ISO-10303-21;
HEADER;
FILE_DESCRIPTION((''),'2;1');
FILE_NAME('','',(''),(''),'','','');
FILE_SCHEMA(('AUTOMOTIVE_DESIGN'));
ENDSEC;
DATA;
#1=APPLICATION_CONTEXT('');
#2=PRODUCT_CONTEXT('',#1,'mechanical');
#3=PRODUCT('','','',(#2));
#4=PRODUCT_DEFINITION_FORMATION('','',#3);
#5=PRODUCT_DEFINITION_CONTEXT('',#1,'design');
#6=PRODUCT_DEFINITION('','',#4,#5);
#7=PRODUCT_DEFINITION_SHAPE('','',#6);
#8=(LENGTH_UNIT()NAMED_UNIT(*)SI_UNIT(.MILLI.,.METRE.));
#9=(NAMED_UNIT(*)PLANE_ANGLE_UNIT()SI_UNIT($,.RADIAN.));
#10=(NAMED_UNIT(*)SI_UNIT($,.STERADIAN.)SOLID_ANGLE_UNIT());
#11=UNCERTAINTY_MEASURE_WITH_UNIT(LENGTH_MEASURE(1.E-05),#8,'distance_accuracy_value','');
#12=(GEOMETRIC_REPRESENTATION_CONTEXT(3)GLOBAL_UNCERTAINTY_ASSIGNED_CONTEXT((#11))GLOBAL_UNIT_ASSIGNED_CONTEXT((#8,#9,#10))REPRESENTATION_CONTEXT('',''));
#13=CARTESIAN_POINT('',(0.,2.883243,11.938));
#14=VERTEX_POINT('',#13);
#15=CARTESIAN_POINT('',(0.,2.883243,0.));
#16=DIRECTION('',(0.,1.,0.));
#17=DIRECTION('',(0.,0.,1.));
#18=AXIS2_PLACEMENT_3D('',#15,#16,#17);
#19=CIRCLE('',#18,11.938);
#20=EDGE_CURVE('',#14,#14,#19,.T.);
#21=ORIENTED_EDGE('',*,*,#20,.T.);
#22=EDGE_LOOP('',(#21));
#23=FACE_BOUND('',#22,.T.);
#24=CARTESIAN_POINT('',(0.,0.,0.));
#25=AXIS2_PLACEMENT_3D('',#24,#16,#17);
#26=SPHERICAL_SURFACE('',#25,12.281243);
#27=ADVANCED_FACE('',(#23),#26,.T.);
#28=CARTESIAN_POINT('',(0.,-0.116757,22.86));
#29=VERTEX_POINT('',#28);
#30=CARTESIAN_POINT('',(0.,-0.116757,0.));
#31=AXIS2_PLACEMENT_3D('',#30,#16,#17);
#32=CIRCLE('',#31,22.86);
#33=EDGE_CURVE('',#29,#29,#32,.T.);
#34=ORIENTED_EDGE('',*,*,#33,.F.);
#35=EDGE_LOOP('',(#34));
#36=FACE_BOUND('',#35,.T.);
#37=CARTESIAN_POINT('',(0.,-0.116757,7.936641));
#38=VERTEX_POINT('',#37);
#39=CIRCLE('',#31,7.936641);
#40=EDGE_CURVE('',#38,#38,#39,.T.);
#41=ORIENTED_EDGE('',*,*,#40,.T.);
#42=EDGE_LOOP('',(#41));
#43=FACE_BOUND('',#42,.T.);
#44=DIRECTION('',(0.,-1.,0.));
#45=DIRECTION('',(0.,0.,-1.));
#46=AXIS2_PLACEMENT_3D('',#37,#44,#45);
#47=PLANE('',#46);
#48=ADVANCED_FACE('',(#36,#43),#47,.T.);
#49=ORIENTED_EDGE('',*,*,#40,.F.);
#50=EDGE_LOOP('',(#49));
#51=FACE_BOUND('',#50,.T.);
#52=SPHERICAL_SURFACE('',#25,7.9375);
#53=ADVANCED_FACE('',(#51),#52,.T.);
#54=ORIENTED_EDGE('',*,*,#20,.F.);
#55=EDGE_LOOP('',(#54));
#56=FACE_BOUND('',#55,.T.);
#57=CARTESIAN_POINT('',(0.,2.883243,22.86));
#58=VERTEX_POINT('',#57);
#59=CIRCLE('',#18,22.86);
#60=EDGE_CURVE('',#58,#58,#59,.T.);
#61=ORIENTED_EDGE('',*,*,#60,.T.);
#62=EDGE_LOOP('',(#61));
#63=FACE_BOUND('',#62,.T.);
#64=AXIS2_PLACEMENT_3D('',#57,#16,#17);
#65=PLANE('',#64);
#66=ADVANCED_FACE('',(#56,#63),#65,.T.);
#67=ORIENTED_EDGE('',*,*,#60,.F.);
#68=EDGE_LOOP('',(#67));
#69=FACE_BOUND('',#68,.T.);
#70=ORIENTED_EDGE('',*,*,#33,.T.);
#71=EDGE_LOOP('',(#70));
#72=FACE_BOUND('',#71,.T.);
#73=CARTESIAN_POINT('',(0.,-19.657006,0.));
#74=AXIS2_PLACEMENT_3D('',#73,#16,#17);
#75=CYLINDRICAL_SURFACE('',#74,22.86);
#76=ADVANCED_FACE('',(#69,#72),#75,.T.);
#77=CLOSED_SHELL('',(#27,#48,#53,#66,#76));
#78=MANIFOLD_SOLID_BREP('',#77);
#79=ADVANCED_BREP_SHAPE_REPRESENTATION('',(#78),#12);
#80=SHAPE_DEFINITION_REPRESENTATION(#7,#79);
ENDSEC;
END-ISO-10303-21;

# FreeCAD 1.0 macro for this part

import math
import FreeCAD as App
import Part
import Sketcher
Q = App.Units.Quantity

doc = App.newDocument("Part")
params = doc.addObject("Spreadsheet::Sheet", "Params")
for row, (alias, value) in enumerate([
    ("sketch1_radius", "0.3125 in"),
    ("sketch1_height", "0.43 in"),
    ("revolution_angle", "360 deg"),
], start=1):
    params.set(f"A{row}", alias)
    params.set(f"B{row}", "=" + value)
    params.setAlias(f"B{row}", alias)

body = doc.addObject("PartDesign::Body", "Body")

sketch1 = body.newObject("Sketcher::SketchObject", "Sketch")
sketch1.AttachmentSupport = (doc.getObject("YZ_Plane"), [""])
sketch1.MapMode = "FlatFace"
sketch1.addGeometry(Part.LineSegment(App.Vector(-0.116757, 22.86, 0), App.Vector(-0.116757, 7.936641, 0)), False)
sketch1.addGeometry(Part.ArcOfCircle(Part.Circle(App.Vector(0, 0, 0), App.Vector(0, 0, 1), 7.9375), math.radians(90.842823), math.radians(180)), False)
sketch1.addGeometry(Part.LineSegment(App.Vector(-7.9375, 0, 0), App.Vector(12.281243, 0, 0)), False)
sketch1.addGeometry(Part.ArcOfCircle(Part.Circle(App.Vector(0, 0, 0), App.Vector(0, 0, 1), 12.281243), math.radians(0), math.radians(76.422051)), False)
sketch1.addGeometry(Part.LineSegment(App.Vector(2.883243, 11.938, 0), App.Vector(2.883243, 22.86, 0)), False)
sketch1.addGeometry(Part.LineSegment(App.Vector(2.883243, 22.86, 0), App.Vector(-0.116757, 22.86, 0)), False)
sketch1.addConstraint(Sketcher.Constraint("Coincident", 0, 2, 1, 1))
sketch1.addConstraint(Sketcher.Constraint("Coincident", 1, 2, 2, 1))
sketch1.addConstraint(Sketcher.Constraint("Coincident", 2, 2, 3, 1))
sketch1.addConstraint(Sketcher.Constraint("Coincident", 3, 2, 4, 1))
sketch1.addConstraint(Sketcher.Constraint("Coincident", 4, 2, 5, 1))
sketch1.addConstraint(Sketcher.Constraint("Coincident", 5, 2, 0, 1))
sketch1.addConstraint(Sketcher.Constraint("Vertical", 0))
sketch1.addConstraint(Sketcher.Constraint("Horizontal", 2))
sketch1.addConstraint(Sketcher.Constraint("Vertical", 4))
sketch1.addConstraint(Sketcher.Constraint("Horizontal", 5))
sketch1.addConstraint(Sketcher.Constraint("Coincident", 1, 3, -1, 1))
sketch1.addConstraint(Sketcher.Constraint("Coincident", 3, 3, -1, 1))
sketch1.addConstraint(Sketcher.Constraint("PointOnObject", 1, 2, -1))
sketch1.addConstraint(Sketcher.Constraint("Radius", 1, Q("0.3125 in")))
sketch1.addConstraint(Sketcher.Constraint("DistanceY", 4, 1, 4, 2, Q("0.43 in")))
sketch1.addConstraint(Sketcher.Constraint("DistanceY", -1, 1, 4, 2, Q("0.9 in")))
sketch1.addConstraint(Sketcher.Constraint("DistanceX", 3, 2, 2, 2, Q("0.37 in")))
sketch1.addConstraint(Sketcher.Constraint("DistanceX", 5, 2, 5, 1, 3.0))
sketch1.setExpression("Constraints[13]", "Params.sketch1_radius")
sketch1.setExpression("Constraints[14]", "Params.sketch1_height")
revolution = body.newObject("PartDesign::Revolution", "Revolution")
revolution.Profile = sketch1
revolution.ReferenceAxis = (sketch1, ["H_Axis"])
revolution.setExpression("Angle", "Params.revolution_angle")

doc.recompute()
